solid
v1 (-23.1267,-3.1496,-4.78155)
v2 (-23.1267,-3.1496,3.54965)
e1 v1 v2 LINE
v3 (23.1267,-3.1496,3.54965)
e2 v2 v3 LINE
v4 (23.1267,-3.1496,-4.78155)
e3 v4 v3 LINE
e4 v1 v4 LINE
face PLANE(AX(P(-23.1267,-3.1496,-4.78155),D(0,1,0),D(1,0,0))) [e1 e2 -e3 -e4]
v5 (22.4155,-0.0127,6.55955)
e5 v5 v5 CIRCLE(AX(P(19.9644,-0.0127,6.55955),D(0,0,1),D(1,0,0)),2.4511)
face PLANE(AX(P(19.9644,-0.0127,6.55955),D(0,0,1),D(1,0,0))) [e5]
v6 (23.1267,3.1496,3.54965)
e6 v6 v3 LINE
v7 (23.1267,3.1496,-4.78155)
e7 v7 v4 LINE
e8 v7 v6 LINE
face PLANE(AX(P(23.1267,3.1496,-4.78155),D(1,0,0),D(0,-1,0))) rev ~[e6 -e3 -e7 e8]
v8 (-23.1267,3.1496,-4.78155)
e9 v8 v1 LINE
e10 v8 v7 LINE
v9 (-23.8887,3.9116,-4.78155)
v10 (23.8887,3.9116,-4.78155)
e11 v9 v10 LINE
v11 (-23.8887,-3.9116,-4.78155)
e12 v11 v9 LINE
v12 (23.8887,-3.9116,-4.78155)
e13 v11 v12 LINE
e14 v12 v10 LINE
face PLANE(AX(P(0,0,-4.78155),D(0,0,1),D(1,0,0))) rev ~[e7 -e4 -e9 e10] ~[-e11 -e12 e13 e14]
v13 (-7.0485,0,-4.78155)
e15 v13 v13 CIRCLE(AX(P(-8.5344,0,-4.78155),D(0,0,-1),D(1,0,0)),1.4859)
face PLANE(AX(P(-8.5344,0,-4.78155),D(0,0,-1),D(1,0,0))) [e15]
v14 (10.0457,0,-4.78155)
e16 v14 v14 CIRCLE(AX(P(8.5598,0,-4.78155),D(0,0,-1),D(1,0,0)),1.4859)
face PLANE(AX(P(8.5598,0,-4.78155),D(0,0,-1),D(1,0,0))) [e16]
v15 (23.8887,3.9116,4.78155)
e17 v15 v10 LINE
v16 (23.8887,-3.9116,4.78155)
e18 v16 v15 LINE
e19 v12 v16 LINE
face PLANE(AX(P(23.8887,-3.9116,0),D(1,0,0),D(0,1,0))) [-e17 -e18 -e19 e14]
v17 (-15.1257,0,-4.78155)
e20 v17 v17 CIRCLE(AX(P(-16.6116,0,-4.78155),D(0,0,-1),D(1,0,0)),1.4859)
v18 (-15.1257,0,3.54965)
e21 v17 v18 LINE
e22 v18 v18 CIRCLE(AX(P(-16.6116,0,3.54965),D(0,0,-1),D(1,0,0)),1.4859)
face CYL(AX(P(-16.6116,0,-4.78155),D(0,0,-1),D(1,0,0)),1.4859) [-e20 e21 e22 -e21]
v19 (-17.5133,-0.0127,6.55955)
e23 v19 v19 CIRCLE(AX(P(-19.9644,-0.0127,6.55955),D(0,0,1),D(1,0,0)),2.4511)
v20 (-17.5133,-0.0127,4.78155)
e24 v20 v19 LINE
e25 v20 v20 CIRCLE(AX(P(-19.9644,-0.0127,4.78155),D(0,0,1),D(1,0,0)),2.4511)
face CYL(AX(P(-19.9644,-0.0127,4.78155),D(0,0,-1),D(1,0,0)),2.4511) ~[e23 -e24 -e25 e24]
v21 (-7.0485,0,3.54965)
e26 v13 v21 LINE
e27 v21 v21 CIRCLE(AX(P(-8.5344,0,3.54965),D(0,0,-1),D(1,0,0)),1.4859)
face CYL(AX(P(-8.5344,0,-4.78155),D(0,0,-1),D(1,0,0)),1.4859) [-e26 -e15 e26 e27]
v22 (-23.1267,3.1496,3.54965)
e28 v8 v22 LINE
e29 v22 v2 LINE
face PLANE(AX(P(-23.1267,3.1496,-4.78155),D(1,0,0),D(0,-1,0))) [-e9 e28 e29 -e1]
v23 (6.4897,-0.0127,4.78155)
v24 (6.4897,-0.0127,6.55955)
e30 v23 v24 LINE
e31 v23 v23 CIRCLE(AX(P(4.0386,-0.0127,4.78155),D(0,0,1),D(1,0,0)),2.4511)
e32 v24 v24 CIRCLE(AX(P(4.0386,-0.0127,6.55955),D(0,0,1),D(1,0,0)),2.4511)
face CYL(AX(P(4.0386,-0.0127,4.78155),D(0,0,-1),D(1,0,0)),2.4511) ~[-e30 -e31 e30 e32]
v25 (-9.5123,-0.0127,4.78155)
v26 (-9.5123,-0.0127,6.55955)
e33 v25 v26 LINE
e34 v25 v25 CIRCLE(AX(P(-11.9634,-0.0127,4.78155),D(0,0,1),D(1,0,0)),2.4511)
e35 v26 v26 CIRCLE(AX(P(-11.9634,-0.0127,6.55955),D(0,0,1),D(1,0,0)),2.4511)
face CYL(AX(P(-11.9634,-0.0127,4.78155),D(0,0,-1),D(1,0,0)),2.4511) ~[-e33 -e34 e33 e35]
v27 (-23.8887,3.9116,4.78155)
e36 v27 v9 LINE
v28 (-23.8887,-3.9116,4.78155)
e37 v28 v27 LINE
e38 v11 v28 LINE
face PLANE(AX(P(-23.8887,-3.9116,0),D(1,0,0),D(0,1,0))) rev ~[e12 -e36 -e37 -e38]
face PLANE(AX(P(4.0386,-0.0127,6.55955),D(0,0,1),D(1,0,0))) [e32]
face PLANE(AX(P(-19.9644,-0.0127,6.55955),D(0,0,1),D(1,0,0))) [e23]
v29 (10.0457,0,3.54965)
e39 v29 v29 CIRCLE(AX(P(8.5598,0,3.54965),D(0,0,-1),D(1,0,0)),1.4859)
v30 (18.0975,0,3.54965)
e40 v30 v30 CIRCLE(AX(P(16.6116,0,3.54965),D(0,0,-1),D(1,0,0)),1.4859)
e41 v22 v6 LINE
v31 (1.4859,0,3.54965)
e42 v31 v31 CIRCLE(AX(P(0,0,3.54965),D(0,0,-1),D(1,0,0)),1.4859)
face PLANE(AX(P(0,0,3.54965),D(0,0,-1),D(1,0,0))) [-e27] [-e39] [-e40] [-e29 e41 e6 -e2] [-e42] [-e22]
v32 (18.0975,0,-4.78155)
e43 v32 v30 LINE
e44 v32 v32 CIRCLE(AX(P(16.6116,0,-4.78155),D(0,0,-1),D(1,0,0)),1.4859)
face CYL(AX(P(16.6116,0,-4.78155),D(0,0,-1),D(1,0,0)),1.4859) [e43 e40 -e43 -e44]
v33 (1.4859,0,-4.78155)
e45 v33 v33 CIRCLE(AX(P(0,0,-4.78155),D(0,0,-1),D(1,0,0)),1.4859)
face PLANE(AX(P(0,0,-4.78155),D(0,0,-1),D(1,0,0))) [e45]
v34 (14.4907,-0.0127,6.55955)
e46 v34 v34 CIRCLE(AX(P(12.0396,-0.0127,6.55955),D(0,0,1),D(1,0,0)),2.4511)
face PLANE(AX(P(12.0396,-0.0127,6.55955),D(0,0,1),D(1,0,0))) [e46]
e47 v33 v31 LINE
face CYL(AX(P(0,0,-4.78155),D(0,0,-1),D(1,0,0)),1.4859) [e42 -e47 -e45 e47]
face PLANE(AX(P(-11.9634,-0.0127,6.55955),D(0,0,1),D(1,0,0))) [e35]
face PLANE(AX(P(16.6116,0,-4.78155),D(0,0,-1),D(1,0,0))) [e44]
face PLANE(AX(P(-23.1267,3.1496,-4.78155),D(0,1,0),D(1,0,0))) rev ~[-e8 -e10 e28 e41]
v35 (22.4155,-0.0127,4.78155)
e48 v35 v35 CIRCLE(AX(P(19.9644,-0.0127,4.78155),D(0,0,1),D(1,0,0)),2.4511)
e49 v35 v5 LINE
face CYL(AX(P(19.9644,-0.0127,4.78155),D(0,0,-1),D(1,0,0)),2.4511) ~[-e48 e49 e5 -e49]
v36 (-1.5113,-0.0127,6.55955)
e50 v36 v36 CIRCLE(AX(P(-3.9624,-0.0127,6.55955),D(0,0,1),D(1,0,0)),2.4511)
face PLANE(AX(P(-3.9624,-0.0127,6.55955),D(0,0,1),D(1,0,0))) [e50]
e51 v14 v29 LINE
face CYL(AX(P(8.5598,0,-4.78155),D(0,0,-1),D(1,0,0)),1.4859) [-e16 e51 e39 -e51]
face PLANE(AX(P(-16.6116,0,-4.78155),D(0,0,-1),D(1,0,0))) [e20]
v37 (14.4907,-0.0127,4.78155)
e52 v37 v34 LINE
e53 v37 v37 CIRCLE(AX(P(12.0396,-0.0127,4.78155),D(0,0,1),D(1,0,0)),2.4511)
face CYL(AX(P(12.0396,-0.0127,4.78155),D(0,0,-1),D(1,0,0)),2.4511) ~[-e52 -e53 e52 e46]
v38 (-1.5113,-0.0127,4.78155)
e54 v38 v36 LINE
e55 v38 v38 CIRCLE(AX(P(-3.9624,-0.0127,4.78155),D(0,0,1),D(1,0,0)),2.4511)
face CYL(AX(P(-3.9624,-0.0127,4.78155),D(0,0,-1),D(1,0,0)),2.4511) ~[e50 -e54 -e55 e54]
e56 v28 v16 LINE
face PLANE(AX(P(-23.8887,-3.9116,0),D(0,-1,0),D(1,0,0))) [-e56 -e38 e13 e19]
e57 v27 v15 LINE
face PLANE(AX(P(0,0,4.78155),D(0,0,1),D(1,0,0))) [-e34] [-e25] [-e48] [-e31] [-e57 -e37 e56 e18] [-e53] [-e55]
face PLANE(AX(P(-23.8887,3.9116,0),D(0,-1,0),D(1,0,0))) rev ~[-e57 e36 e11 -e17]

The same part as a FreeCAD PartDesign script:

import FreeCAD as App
import Part
import Sketcher
from FreeCAD import Vector
Q = App.Units.Quantity

doc = App.newDocument("Part")
body = doc.addObject("PartDesign::Body", "Body")

sketch1 = doc.addObject("Sketcher::SketchObject", "Sketch")
body.addObject(sketch1)
sketch1.AttachmentSupport = (doc.XY_Plane, [""])
sketch1.MapMode = "FlatFace"
sketch1.addGeometry(Part.LineSegment(Vector(-24, 4, 0), Vector(-24, -4, 0)), False)
sketch1.addGeometry(Part.LineSegment(Vector(-24, -4, 0), Vector(24, -4, 0)), False)
sketch1.addGeometry(Part.LineSegment(Vector(24, -4, 0), Vector(24, 4, 0)), False)
sketch1.addGeometry(Part.LineSegment(Vector(24, 4, 0), Vector(-24, 4, 0)), False)
sketch1.addConstraint(Sketcher.Constraint("Coincident", 0, 2, 1, 1))
sketch1.addConstraint(Sketcher.Constraint("Coincident", 1, 2, 2, 1))
sketch1.addConstraint(Sketcher.Constraint("Coincident", 2, 2, 3, 1))
sketch1.addConstraint(Sketcher.Constraint("Coincident", 3, 2, 0, 1))
sketch1.addConstraint(Sketcher.Constraint("Vertical", 0))
sketch1.addConstraint(Sketcher.Constraint("Horizontal", 1))
sketch1.addConstraint(Sketcher.Constraint("Vertical", 2))
sketch1.addConstraint(Sketcher.Constraint("Horizontal", 3))
sketch1.addConstraint(Sketcher.Constraint("Symmetric", 0, 2, 2, 2, -1, 1))
sketch1.addConstraint(Sketcher.Constraint("DistanceX", 1, 1, 1, 2, Q("1.881 in")))
sketch1.addConstraint(Sketcher.Constraint("DistanceY", 0, 2, 0, 1, Q("0.308 in")))
pad1 = doc.addObject("PartDesign::Pad", "Pad")
body.addObject(pad1)
pad1.Profile = sketch1
pad1.Length = Q("0.3765 in")
pad1.Midplane = True

sketch2 = doc.addObject("Sketcher::SketchObject", "Sketch001")
body.addObject(sketch2)
sketch2.AttachmentSupport = (doc.XY_Plane, [""])
sketch2.MapMode = "FlatFace"
sketch2.AttachmentOffset = App.Placement(Vector(0, 0, 4.78155), App.Rotation())
sketch2.addGeometry(Part.Circle(Vector(-20, 0, 0), Vector(0, 0, 1), 2.5), False)
sketch2.addConstraint(Sketcher.Constraint("Diameter", 0, Q("0.193 in")))
sketch2.addConstraint(Sketcher.Constraint("DistanceX", 0, 3, -1, 1, Q("0.786 in")))
sketch2.addConstraint(Sketcher.Constraint("DistanceY", 0, 3, -1, 1, Q("0.0005 in")))
pad2 = doc.addObject("PartDesign::Pad", "Pad001")
body.addObject(pad2)
pad2.Profile = sketch2
pad2.Length = Q("0.07 in")

sketch3 = doc.addObject("Sketcher::SketchObject", "Sketch002")
body.addObject(sketch3)
sketch3.AttachmentSupport = (doc.XY_Plane, [""])
sketch3.MapMode = "FlatFace"
sketch3.AttachmentOffset = App.Placement(Vector(0, 0, 4.78155), App.Rotation())
sketch3.addGeometry(Part.Circle(Vector(-12, 0, 0), Vector(0, 0, 1), 2.5), False)
sketch3.addConstraint(Sketcher.Constraint("Diameter", 0, Q("0.193 in")))
sketch3.addConstraint(Sketcher.Constraint("DistanceX", 0, 3, -1, 1, Q("0.471 in")))
sketch3.addConstraint(Sketcher.Constraint("DistanceY", 0, 3, -1, 1, Q("0.0005 in")))
pad3 = doc.addObject("PartDesign::Pad", "Pad002")
body.addObject(pad3)
pad3.Profile = sketch3
pad3.Length = Q("0.07 in")

sketch4 = doc.addObject("Sketcher::SketchObject", "Sketch003")
body.addObject(sketch4)
sketch4.AttachmentSupport = (doc.XY_Plane, [""])
sketch4.MapMode = "FlatFace"
sketch4.AttachmentOffset = App.Placement(Vector(0, 0, 4.78155), App.Rotation())
sketch4.addGeometry(Part.Circle(Vector(-4, 0, 0), Vector(0, 0, 1), 2.5), False)
sketch4.addConstraint(Sketcher.Constraint("Diameter", 0, Q("0.193 in")))
sketch4.addConstraint(Sketcher.Constraint("DistanceX", 0, 3, -1, 1, Q("0.156 in")))
sketch4.addConstraint(Sketcher.Constraint("DistanceY", 0, 3, -1, 1, Q("0.0005 in")))
pad4 = doc.addObject("PartDesign::Pad", "Pad003")
body.addObject(pad4)
pad4.Profile = sketch4
pad4.Length = Q("0.07 in")

sketch5 = doc.addObject("Sketcher::SketchObject", "Sketch004")
body.addObject(sketch5)
sketch5.AttachmentSupport = (doc.XY_Plane, [""])
sketch5.MapMode = "FlatFace"
sketch5.AttachmentOffset = App.Placement(Vector(0, 0, 4.78155), App.Rotation())
sketch5.addGeometry(Part.Circle(Vector(4, 0, 0), Vector(0, 0, 1), 2.5), False)
sketch5.addConstraint(Sketcher.Constraint("Diameter", 0, Q("0.193 in")))
sketch5.addConstraint(Sketcher.Constraint("DistanceX", -1, 1, 0, 3, Q("0.159 in")))
sketch5.addConstraint(Sketcher.Constraint("DistanceY", 0, 3, -1, 1, Q("0.0005 in")))
pad5 = doc.addObject("PartDesign::Pad", "Pad004")
body.addObject(pad5)
pad5.Profile = sketch5
pad5.Length = Q("0.07 in")

sketch6 = doc.addObject("Sketcher::SketchObject", "Sketch005")
body.addObject(sketch6)
sketch6.AttachmentSupport = (doc.XY_Plane, [""])
sketch6.MapMode = "FlatFace"
sketch6.AttachmentOffset = App.Placement(Vector(0, 0, 4.78155), App.Rotation())
sketch6.addGeometry(Part.Circle(Vector(12, 0, 0), Vector(0, 0, 1), 2.5), False)
sketch6.addConstraint(Sketcher.Constraint("Diameter", 0, Q("0.193 in")))
sketch6.addConstraint(Sketcher.Constraint("DistanceX", -1, 1, 0, 3, Q("0.474 in")))
sketch6.addConstraint(Sketcher.Constraint("DistanceY", 0, 3, -1, 1, Q("0.0005 in")))
pad6 = doc.addObject("PartDesign::Pad", "Pad005")
body.addObject(pad6)
pad6.Profile = sketch6
pad6.Length = Q("0.07 in")

sketch7 = doc.addObject("Sketcher::SketchObject", "Sketch006")
body.addObject(sketch7)
sketch7.AttachmentSupport = (doc.XY_Plane, [""])
sketch7.MapMode = "FlatFace"
sketch7.AttachmentOffset = App.Placement(Vector(0, 0, 4.78155), App.Rotation())
sketch7.addGeometry(Part.Circle(Vector(20, 0, 0), Vector(0, 0, 1), 2.5), False)
sketch7.addConstraint(Sketcher.Constraint("Diameter", 0, Q("0.193 in")))
sketch7.addConstraint(Sketcher.Constraint("DistanceX", -1, 1, 0, 3, Q("0.786 in")))
sketch7.addConstraint(Sketcher.Constraint("DistanceY", 0, 3, -1, 1, Q("0.0005 in")))
pad7 = doc.addObject("PartDesign::Pad", "Pad006")
body.addObject(pad7)
pad7.Profile = sketch7
pad7.Length = Q("0.07 in")

sketch8 = doc.addObject("Sketcher::SketchObject", "Sketch007")
body.addObject(sketch8)
sketch8.AttachmentSupport = (doc.XY_Plane, [""])
sketch8.MapMode = "FlatFace"
sketch8.AttachmentOffset = App.Placement(Vector(0, 0, -4.78155), App.Rotation())
sketch8.addGeometry(Part.LineSegment(Vector(-23, -3, 0), Vector(-23, 3, 0)), False)
sketch8.addGeometry(Part.LineSegment(Vector(-23, 3, 0), Vector(23, 3, 0)), False)
sketch8.addGeometry(Part.LineSegment(Vector(23, 3, 0), Vector(23, -3, 0)), False)
sketch8.addGeometry(Part.LineSegment(Vector(23, -3, 0), Vector(-23, -3, 0)), False)
sketch8.addConstraint(Sketcher.Constraint("Coincident", 0, 2, 1, 1))
sketch8.addConstraint(Sketcher.Constraint("Coincident", 1, 2, 2, 1))
sketch8.addConstraint(Sketcher.Constraint("Coincident", 2, 2, 3, 1))
sketch8.addConstraint(Sketcher.Constraint("Coincident", 3, 2, 0, 1))
sketch8.addConstraint(Sketcher.Constraint("Vertical", 0))
sketch8.addConstraint(Sketcher.Constraint("Horizontal", 1))
sketch8.addConstraint(Sketcher.Constraint("Vertical", 2))
sketch8.addConstraint(Sketcher.Constraint("Horizontal", 3))
sketch8.addConstraint(Sketcher.Constraint("Symmetric", 0, 2, 2, 2, -1, 1))
sketch8.addConstraint(Sketcher.Constraint("DistanceX", 1, 1, 1, 2, Q("1.821 in")))
sketch8.addConstraint(Sketcher.Constraint("DistanceY", 0, 1, 0, 2, Q("0.248 in")))
pocket1 = doc.addObject("PartDesign::Pocket", "Pocket")
body.addObject(pocket1)
pocket1.Profile = sketch8
pocket1.Length = Q("0.328 in")
pocket1.Reversed = True

sketch9 = doc.addObject("Sketcher::SketchObject", "Sketch008")
body.addObject(sketch9)
sketch9.AttachmentSupport = (doc.XY_Plane, [""])
sketch9.MapMode = "FlatFace"
sketch9.AttachmentOffset = App.Placement(Vector(0, 0, -4.78155), App.Rotation())
sketch9.addGeometry(Part.Circle(Vector(-16.6, 0, 0), Vector(0, 0, 1), 1.5), False)
sketch9.addConstraint(Sketcher.Constraint("PointOnObject", 0, 3, -1))
sketch9.addConstraint(Sketcher.Constraint("Diameter", 0, Q("0.117 in")))
sketch9.addConstraint(Sketcher.Constraint("DistanceX", 0, 3, -1, 1, Q("0.654 in")))
pad8 = doc.addObject("PartDesign::Pad", "Pad007")
body.addObject(pad8)
pad8.Profile = sketch9
pad8.Length = Q("0.328 in")

sketch10 = doc.addObject("Sketcher::SketchObject", "Sketch009")
body.addObject(sketch10)
sketch10.AttachmentSupport = (doc.XY_Plane, [""])
sketch10.MapMode = "FlatFace"
sketch10.AttachmentOffset = App.Placement(Vector(0, 0, -4.78155), App.Rotation())
sketch10.addGeometry(Part.Circle(Vector(-8.5, 0, 0), Vector(0, 0, 1), 1.5), False)
sketch10.addConstraint(Sketcher.Constraint("PointOnObject", 0, 3, -1))
sketch10.addConstraint(Sketcher.Constraint("Diameter", 0, Q("0.117 in")))
sketch10.addConstraint(Sketcher.Constraint("DistanceX", 0, 3, -1, 1, Q("0.336 in")))
pad9 = doc.addObject("PartDesign::Pad", "Pad008")
body.addObject(pad9)
pad9.Profile = sketch10
pad9.Length = Q("0.328 in")

sketch11 = doc.addObject("Sketcher::SketchObject", "Sketch010")
body.addObject(sketch11)
sketch11.AttachmentSupport = (doc.XY_Plane, [""])
sketch11.MapMode = "FlatFace"
sketch11.AttachmentOffset = App.Placement(Vector(0, 0, -4.78155), App.Rotation())
sketch11.addGeometry(Part.Circle(Vector(0, 0, 0), Vector(0, 0, 1), 1.5), False)
sketch11.addConstraint(Sketcher.Constraint("Coincident", 0, 3, -1, 1))
sketch11.addConstraint(Sketcher.Constraint("Diameter", 0, Q("0.117 in")))
pad10 = doc.addObject("PartDesign::Pad", "Pad009")
body.addObject(pad10)
pad10.Profile = sketch11
pad10.Length = Q("0.328 in")

sketch12 = doc.addObject("Sketcher::SketchObject", "Sketch011")
body.addObject(sketch12)
sketch12.AttachmentSupport = (doc.XY_Plane, [""])
sketch12.MapMode = "FlatFace"
sketch12.AttachmentOffset = App.Placement(Vector(0, 0, -4.78155), App.Rotation())
sketch12.addGeometry(Part.Circle(Vector(8.6, 0, 0), Vector(0, 0, 1), 1.5), False)
sketch12.addConstraint(Sketcher.Constraint("PointOnObject", 0, 3, -1))
sketch12.addConstraint(Sketcher.Constraint("Diameter", 0, Q("0.117 in")))
sketch12.addConstraint(Sketcher.Constraint("DistanceX", -1, 1, 0, 3, Q("0.337 in")))
pad11 = doc.addObject("PartDesign::Pad", "Pad010")
body.addObject(pad11)
pad11.Profile = sketch12
pad11.Length = Q("0.328 in")

sketch13 = doc.addObject("Sketcher::SketchObject", "Sketch012")
body.addObject(sketch13)
sketch13.AttachmentSupport = (doc.XY_Plane, [""])
sketch13.MapMode = "FlatFace"
sketch13.AttachmentOffset = App.Placement(Vector(0, 0, -4.78155), App.Rotation())
sketch13.addGeometry(Part.Circle(Vector(16.6, 0, 0), Vector(0, 0, 1), 1.5), False)
sketch13.addConstraint(Sketcher.Constraint("PointOnObject", 0, 3, -1))
sketch13.addConstraint(Sketcher.Constraint("Diameter", 0, Q("0.117 in")))
sketch13.addConstraint(Sketcher.Constraint("DistanceX", -1, 1, 0, 3, Q("0.654 in")))
pad12 = doc.addObject("PartDesign::Pad", "Pad011")
body.addObject(pad12)
pad12.Profile = sketch13
pad12.Length = Q("0.328 in")

doc.recompute()
